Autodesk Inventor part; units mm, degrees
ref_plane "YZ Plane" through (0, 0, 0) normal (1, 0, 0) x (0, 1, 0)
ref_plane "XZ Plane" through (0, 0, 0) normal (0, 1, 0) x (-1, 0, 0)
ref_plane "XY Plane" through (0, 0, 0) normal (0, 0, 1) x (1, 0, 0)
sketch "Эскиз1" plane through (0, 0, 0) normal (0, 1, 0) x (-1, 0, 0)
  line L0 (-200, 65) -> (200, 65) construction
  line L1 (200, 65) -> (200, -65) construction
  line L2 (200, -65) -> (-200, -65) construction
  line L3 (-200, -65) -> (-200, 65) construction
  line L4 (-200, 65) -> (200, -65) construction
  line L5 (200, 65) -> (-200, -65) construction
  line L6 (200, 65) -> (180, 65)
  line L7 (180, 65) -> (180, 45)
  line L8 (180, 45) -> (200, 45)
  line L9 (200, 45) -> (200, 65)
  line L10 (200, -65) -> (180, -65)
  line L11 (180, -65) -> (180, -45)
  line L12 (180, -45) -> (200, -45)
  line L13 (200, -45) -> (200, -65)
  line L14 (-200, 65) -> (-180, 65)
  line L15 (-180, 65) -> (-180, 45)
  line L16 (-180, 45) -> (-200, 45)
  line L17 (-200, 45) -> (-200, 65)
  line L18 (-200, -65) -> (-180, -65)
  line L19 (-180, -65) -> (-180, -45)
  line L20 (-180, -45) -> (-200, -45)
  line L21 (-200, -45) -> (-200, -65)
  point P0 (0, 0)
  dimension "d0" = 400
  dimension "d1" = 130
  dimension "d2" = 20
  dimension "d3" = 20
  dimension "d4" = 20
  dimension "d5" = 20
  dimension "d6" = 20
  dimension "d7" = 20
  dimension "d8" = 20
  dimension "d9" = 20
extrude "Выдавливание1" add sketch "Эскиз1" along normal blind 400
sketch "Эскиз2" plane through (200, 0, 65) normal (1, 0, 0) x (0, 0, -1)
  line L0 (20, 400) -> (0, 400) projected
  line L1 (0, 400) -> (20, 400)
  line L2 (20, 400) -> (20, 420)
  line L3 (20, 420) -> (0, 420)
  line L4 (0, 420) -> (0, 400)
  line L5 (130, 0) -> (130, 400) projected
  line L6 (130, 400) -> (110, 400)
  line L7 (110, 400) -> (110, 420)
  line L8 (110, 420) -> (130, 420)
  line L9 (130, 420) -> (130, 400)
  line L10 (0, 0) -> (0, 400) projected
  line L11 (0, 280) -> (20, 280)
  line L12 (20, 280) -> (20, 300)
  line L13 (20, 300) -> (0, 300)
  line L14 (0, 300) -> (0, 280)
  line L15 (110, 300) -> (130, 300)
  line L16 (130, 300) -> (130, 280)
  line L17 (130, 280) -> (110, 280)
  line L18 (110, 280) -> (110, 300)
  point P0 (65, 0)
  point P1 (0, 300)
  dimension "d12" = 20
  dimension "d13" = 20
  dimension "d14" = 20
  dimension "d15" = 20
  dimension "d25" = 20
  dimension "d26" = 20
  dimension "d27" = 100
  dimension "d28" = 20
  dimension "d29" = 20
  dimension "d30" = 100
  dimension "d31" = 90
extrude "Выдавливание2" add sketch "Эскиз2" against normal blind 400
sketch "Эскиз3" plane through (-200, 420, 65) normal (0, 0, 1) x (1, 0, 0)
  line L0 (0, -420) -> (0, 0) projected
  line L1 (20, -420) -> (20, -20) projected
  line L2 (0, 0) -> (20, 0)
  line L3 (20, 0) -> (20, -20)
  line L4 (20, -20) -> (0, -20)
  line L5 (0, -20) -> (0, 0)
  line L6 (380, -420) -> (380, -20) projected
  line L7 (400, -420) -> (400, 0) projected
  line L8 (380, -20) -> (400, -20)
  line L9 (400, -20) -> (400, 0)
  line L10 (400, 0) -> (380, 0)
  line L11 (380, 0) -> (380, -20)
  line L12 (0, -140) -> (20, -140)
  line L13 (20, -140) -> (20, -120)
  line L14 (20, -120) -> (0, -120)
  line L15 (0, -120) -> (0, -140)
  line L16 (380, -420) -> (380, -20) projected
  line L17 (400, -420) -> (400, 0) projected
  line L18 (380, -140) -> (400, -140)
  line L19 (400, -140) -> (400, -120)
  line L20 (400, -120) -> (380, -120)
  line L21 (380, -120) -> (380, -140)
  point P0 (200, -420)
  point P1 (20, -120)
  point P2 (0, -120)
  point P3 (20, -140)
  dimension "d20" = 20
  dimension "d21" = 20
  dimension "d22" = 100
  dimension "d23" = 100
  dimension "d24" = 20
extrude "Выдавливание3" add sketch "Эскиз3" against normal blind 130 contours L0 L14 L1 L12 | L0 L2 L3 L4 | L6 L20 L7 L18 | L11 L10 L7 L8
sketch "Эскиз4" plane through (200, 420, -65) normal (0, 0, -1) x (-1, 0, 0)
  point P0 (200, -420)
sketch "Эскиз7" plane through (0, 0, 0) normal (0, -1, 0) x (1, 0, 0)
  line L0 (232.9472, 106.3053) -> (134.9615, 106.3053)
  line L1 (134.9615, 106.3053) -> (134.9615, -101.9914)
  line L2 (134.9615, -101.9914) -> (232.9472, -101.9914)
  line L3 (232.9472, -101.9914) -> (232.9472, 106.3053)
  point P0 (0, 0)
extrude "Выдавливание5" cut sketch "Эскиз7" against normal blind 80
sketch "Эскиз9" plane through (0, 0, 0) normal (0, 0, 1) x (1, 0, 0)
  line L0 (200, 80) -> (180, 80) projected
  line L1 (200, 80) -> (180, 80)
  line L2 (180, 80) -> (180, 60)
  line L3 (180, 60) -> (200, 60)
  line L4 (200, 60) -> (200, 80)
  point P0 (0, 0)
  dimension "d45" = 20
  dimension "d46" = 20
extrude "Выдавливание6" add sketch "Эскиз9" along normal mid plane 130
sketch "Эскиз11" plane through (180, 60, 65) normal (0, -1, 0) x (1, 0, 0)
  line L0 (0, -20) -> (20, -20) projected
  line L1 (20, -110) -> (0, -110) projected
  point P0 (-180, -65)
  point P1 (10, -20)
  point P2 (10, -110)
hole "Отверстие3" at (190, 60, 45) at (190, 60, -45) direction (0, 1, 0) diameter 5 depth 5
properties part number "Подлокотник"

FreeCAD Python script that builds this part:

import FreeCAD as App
import Part
import Sketcher
from FreeCAD import Vector
Q = App.Units.Quantity

doc = App.newDocument("Part")
params = doc.addObject("Spreadsheet::Sheet", "Params")
for row, (alias, value) in enumerate([
    ("sketch1_width", "20 mm"),
    ("pad1_length", "400 mm"),
    ("sketch2_width", "20 mm"),
    ("pad2_length", "400 mm"),
    ("sketch3_width", "20 mm"),
    ("pad3_length", "130 mm"),
    ("pocket1_length", "80 mm"),
    ("sketch5_width", "20 mm"),
    ("pad4_length", "130 mm"),
    ("sketch6_diameter", "5 mm"),
    ("hole_diameter", "5 mm"),
    ("hole_depth", "5 mm"),
], start=1):
    params.set(f"A{row}", alias)
    params.set(f"B{row}", "=" + value)
    params.setAlias(f"B{row}", alias)

body = doc.addObject("PartDesign::Body", "Body")
body.AllowCompound = True

# Sketch on XZ plane
sketch1 = body.newObject("Sketcher::SketchObject", "Sketch")
sketch1.AttachmentSupport = (doc.getObject("XZ_Plane"), [""])
sketch1.MapMode = "FlatFace"
sketch1.addGeometry([
    Part.LineSegment(Vector(-200, 45, 0), Vector(-200, 65, 0)),  # 0
    Part.LineSegment(Vector(-200, 65, 0), Vector(-180, 65, 0)),  # 1
    Part.LineSegment(Vector(-180, 65, 0), Vector(-180, 45, 0)),  # 2
    Part.LineSegment(Vector(-180, 45, 0), Vector(-200, 45, 0)),  # 3
    Part.LineSegment(Vector(-180, -65, 0), Vector(-200, -65, 0)),  # 4
    Part.LineSegment(Vector(-200, -65, 0), Vector(-200, -45, 0)),  # 5
    Part.LineSegment(Vector(-200, -45, 0), Vector(-180, -45, 0)),  # 6
    Part.LineSegment(Vector(-180, -45, 0), Vector(-180, -65, 0)),  # 7
    Part.LineSegment(Vector(180, 65, 0), Vector(200, 65, 0)),  # 8
    Part.LineSegment(Vector(200, 65, 0), Vector(200, 45, 0)),  # 9
    Part.LineSegment(Vector(200, 45, 0), Vector(180, 45, 0)),  # 10
    Part.LineSegment(Vector(180, 45, 0), Vector(180, 65, 0)),  # 11
    Part.LineSegment(Vector(200, -45, 0), Vector(200, -65, 0)),  # 12
    Part.LineSegment(Vector(200, -65, 0), Vector(180, -65, 0)),  # 13
    Part.LineSegment(Vector(180, -65, 0), Vector(180, -45, 0)),  # 14
    Part.LineSegment(Vector(180, -45, 0), Vector(200, -45, 0)),  # 15
], False)
sketch1.addConstraint([
    Sketcher.Constraint("Coincident", 0, 2, 1, 1),
    Sketcher.Constraint("Coincident", 1, 2, 2, 1),
    Sketcher.Constraint("Coincident", 2, 2, 3, 1),
    Sketcher.Constraint("Coincident", 3, 2, 0, 1),
    Sketcher.Constraint("Coincident", 4, 2, 5, 1),
    Sketcher.Constraint("Coincident", 5, 2, 6, 1),
    Sketcher.Constraint("Coincident", 6, 2, 7, 1),
    Sketcher.Constraint("Coincident", 7, 2, 4, 1),
    Sketcher.Constraint("Coincident", 8, 2, 9, 1),
    Sketcher.Constraint("Coincident", 9, 2, 10, 1),
    Sketcher.Constraint("Coincident", 10, 2, 11, 1),
    Sketcher.Constraint("Coincident", 11, 2, 8, 1),
    Sketcher.Constraint("Coincident", 12, 2, 13, 1),
    Sketcher.Constraint("Coincident", 13, 2, 14, 1),
    Sketcher.Constraint("Coincident", 14, 2, 15, 1),
    Sketcher.Constraint("Coincident", 15, 2, 12, 1),
    Sketcher.Constraint("Vertical", 0),
    Sketcher.Constraint("Horizontal", 1),
    Sketcher.Constraint("Vertical", 2),
    Sketcher.Constraint("Horizontal", 3),
    Sketcher.Constraint("Horizontal", 4),
    Sketcher.Constraint("Vertical", 5),
    Sketcher.Constraint("Horizontal", 6),
    Sketcher.Constraint("Vertical", 7),
    Sketcher.Constraint("Horizontal", 8),
    Sketcher.Constraint("Vertical", 9),
    Sketcher.Constraint("Horizontal", 10),
    Sketcher.Constraint("Vertical", 11),
    Sketcher.Constraint("Vertical", 12),
    Sketcher.Constraint("Horizontal", 13),
    Sketcher.Constraint("Vertical", 14),
    Sketcher.Constraint("Horizontal", 15),
    Sketcher.Constraint("Symmetric", 4, 2, 8, 2, -1, 1),
    Sketcher.Constraint("Symmetric", 6, 2, 10, 2, -1, 1),
    Sketcher.Constraint("Symmetric", 0, 2, 12, 2, -1, 1),
    Sketcher.Constraint("Symmetric", 2, 2, 14, 2, -1, 1),
    Sketcher.Constraint("Symmetric", 0, 2, 8, 2, -2),
    Sketcher.Constraint("Symmetric", 2, 2, 10, 2, -2),
    Sketcher.Constraint("Equal", 15, 0),
    Sketcher.Constraint("DistanceX", 1, 1, 1, 2, Q("20 mm")),
    Sketcher.Constraint("DistanceY", 4, 2, 0, 2, Q("130 mm")),
    Sketcher.Constraint("DistanceX", 0, 2, 8, 2, Q("400 mm")),
])
sketch1.setExpression("Constraints[39]", "Params.sketch1_width")
pad1 = body.newObject("PartDesign::Pad", "Pad")
pad1.Profile = sketch1
pad1.setExpression("Length", "Params.pad1_length")
pad1.Reversed = True

# Sketch on YZ plane
sketch2 = body.newObject("Sketcher::SketchObject", "Sketch001")
sketch2.AttachmentSupport = (doc.getObject("YZ_Plane"), [""])
sketch2.MapMode = "FlatFace"
sketch2.AttachmentOffset = App.Placement(Vector(0, 0, 200), App.Rotation())
sketch2.addGeometry([
    Part.LineSegment(Vector(300, 45, 0), Vector(300, 65, 0)),  # 0
    Part.LineSegment(Vector(300, 65, 0), Vector(280, 65, 0)),  # 1
    Part.LineSegment(Vector(280, 65, 0), Vector(280, 45, 0)),  # 2
    Part.LineSegment(Vector(280, 45, 0), Vector(300, 45, 0)),  # 3
    Part.LineSegment(Vector(400, 65, 0), Vector(400, 45, 0)),  # 4
    Part.LineSegment(Vector(400, 45, 0), Vector(420, 45, 0)),  # 5
    Part.LineSegment(Vector(420, 45, 0), Vector(420, 65, 0)),  # 6
    Part.LineSegment(Vector(420, 65, 0), Vector(400, 65, 0)),  # 7
    Part.LineSegment(Vector(280, -45, 0), Vector(280, -65, 0)),  # 8
    Part.LineSegment(Vector(280, -65, 0), Vector(300, -65, 0)),  # 9
    Part.LineSegment(Vector(300, -65, 0), Vector(300, -45, 0)),  # 10
    Part.LineSegment(Vector(300, -45, 0), Vector(280, -45, 0)),  # 11
    Part.LineSegment(Vector(400, -45, 0), Vector(400, -65, 0)),  # 12
    Part.LineSegment(Vector(400, -65, 0), Vector(420, -65, 0)),  # 13
    Part.LineSegment(Vector(420, -65, 0), Vector(420, -45, 0)),  # 14
    Part.LineSegment(Vector(420, -45, 0), Vector(400, -45, 0)),  # 15
], False)
sketch2.addConstraint([
    Sketcher.Constraint("Coincident", 0, 2, 1, 1),
    Sketcher.Constraint("Coincident", 1, 2, 2, 1),
    Sketcher.Constraint("Coincident", 2, 2, 3, 1),
    Sketcher.Constraint("Coincident", 3, 2, 0, 1),
    Sketcher.Constraint("Coincident", 4, 2, 5, 1),
    Sketcher.Constraint("Coincident", 5, 2, 6, 1),
    Sketcher.Constraint("Coincident", 6, 2, 7, 1),
    Sketcher.Constraint("Coincident", 7, 2, 4, 1),
    Sketcher.Constraint("Coincident", 8, 2, 9, 1),
    Sketcher.Constraint("Coincident", 9, 2, 10, 1),
    Sketcher.Constraint("Coincident", 10, 2, 11, 1),
    Sketcher.Constraint("Coincident", 11, 2, 8, 1),
    Sketcher.Constraint("Coincident", 12, 2, 13, 1),
    Sketcher.Constraint("Coincident", 13, 2, 14, 1),
    Sketcher.Constraint("Coincident", 14, 2, 15, 1),
    Sketcher.Constraint("Coincident", 15, 2, 12, 1),
    Sketcher.Constraint("Vertical", 0),
    Sketcher.Constraint("Horizontal", 1),
    Sketcher.Constraint("Vertical", 2),
    Sketcher.Constraint("Horizontal", 3),
    Sketcher.Constraint("Vertical", 4),
    Sketcher.Constraint("Horizontal", 5),
    Sketcher.Constraint("Vertical", 6),
    Sketcher.Constraint("Horizontal", 7),
    Sketcher.Constraint("Vertical", 8),
    Sketcher.Constraint("Horizontal", 9),
    Sketcher.Constraint("Vertical", 10),
    Sketcher.Constraint("Horizontal", 11),
    Sketcher.Constraint("Vertical", 12),
    Sketcher.Constraint("Horizontal", 13),
    Sketcher.Constraint("Vertical", 14),
    Sketcher.Constraint("Horizontal", 15),
    Sketcher.Constraint("Symmetric", 1, 2, 8, 2, -1),
    Sketcher.Constraint("Symmetric", 3, 2, 10, 2, -1),
    Sketcher.Constraint("Symmetric", 7, 2, 12, 2, -1),
    Sketcher.Constraint("Symmetric", 5, 2, 14, 2, -1),
    Sketcher.Constraint("Horizontal", 3, 2, 4, 2),
    Sketcher.Constraint("Horizontal", 1, 2, 6, 2),
    Sketcher.Constraint("Equal", 3, 5),
    Sketcher.Constraint("Equal", 15, 0),
    Sketcher.Constraint("DistanceX", 1, 2, 1, 1, Q("20 mm")),
    Sketcher.Constraint("DistanceX", 3, 2, 4, 2, Q("100 mm")),
    Sketcher.Constraint("DistanceY", 10, 2, 3, 2, Q("90 mm")),
    Sketcher.Constraint("DistanceX", -1, 1, 0, 2, Q("300 mm")),
])
sketch2.setExpression("Constraints[40]", "Params.sketch2_width")
pad2 = body.newObject("PartDesign::Pad", "Pad001")
pad2.Profile = sketch2
pad2.setExpression("Length", "Params.pad2_length")
pad2.Reversed = True

# Sketch on XY plane
sketch3 = body.newObject("Sketcher::SketchObject", "Sketch002")
sketch3.AttachmentSupport = (doc.getObject("XY_Plane"), [""])
sketch3.MapMode = "FlatFace"
sketch3.AttachmentOffset = App.Placement(Vector(0, 0, 65), App.Rotation())
sketch3.addGeometry([
    Part.LineSegment(Vector(-200, 300, 0), Vector(-200, 280, 0)),  # 0
    Part.LineSegment(Vector(-200, 280, 0), Vector(-180, 280, 0)),  # 1
    Part.LineSegment(Vector(-180, 280, 0), Vector(-180, 300, 0)),  # 2
    Part.LineSegment(Vector(-180, 300, 0), Vector(-200, 300, 0)),  # 3
    Part.LineSegment(Vector(-200, 420, 0), Vector(-200, 400, 0)),  # 4
    Part.LineSegment(Vector(-200, 400, 0), Vector(-180, 400, 0)),  # 5
    Part.LineSegment(Vector(-180, 400, 0), Vector(-180, 420, 0)),  # 6
    Part.LineSegment(Vector(-180, 420, 0), Vector(-200, 420, 0)),  # 7
    Part.LineSegment(Vector(180, 300, 0), Vector(180, 280, 0)),  # 8
    Part.LineSegment(Vector(180, 280, 0), Vector(200, 280, 0)),  # 9
    Part.LineSegment(Vector(200, 280, 0), Vector(200, 300, 0)),  # 10
    Part.LineSegment(Vector(200, 300, 0), Vector(180, 300, 0)),  # 11
    Part.LineSegment(Vector(180, 420, 0), Vector(180, 400, 0)),  # 12
    Part.LineSegment(Vector(180, 400, 0), Vector(200, 400, 0)),  # 13
    Part.LineSegment(Vector(200, 400, 0), Vector(200, 420, 0)),  # 14
    Part.LineSegment(Vector(200, 420, 0), Vector(180, 420, 0)),  # 15
], False)
sketch3.addConstraint([
    Sketcher.Constraint("Coincident", 0, 2, 1, 1),
    Sketcher.Constraint("Coincident", 1, 2, 2, 1),
    Sketcher.Constraint("Coincident", 2, 2, 3, 1),
    Sketcher.Constraint("Coincident", 3, 2, 0, 1),
    Sketcher.Constraint("Coincident", 4, 2, 5, 1),
    Sketcher.Constraint("Coincident", 5, 2, 6, 1),
    Sketcher.Constraint("Coincident", 6, 2, 7, 1),
    Sketcher.Constraint("Coincident", 7, 2, 4, 1),
    Sketcher.Constraint("Coincident", 8, 2, 9, 1),
    Sketcher.Constraint("Coincident", 9, 2, 10, 1),
    Sketcher.Constraint("Coincident", 10, 2, 11, 1),
    Sketcher.Constraint("Coincident", 11, 2, 8, 1),
    Sketcher.Constraint("Coincident", 12, 2, 13, 1),
    Sketcher.Constraint("Coincident", 13, 2, 14, 1),
    Sketcher.Constraint("Coincident", 14, 2, 15, 1),
    Sketcher.Constraint("Coincident", 15, 2, 12, 1),
    Sketcher.Constraint("Vertical", 0),
    Sketcher.Constraint("Horizontal", 1),
    Sketcher.Constraint("Vertical", 2),
    Sketcher.Constraint("Horizontal", 3),
    Sketcher.Constraint("Vertical", 4),
    Sketcher.Constraint("Horizontal", 5),
    Sketcher.Constraint("Vertical", 6),
    Sketcher.Constraint("Horizontal", 7),
    Sketcher.Constraint("Vertical", 8),
    Sketcher.Constraint("Horizontal", 9),
    Sketcher.Constraint("Vertical", 10),
    Sketcher.Constraint("Horizontal", 11),
    Sketcher.Constraint("Vertical", 12),
    Sketcher.Constraint("Horizontal", 13),
    Sketcher.Constraint("Vertical", 14),
    Sketcher.Constraint("Horizontal", 15),
    Sketcher.Constraint("Symmetric", 1, 2, 8, 2, -2),
    Sketcher.Constraint("Symmetric", 3, 2, 10, 2, -2),
    Sketcher.Constraint("Symmetric", 5, 2, 12, 2, -2),
    Sketcher.Constraint("Symmetric", 7, 2, 14, 2, -2),
    Sketcher.Constraint("Vertical", 3, 2, 4, 2),
    Sketcher.Constraint("Vertical", 2, 2, 5, 2),
    Sketcher.Constraint("Equal", 15, 0),
    Sketcher.Constraint("Equal", 2, 4),
    Sketcher.Constraint("DistanceX", 1, 1, 1, 2, Q("20 mm")),
    Sketcher.Constraint("DistanceY", 3, 2, 4, 2, Q("100 mm")),
    Sketcher.Constraint("DistanceX", 0, 2, -1, 1, Q("200 mm")),
    Sketcher.Constraint("DistanceY", -1, 1, 0, 2, Q("280 mm")),
])
sketch3.setExpression("Constraints[40]", "Params.sketch3_width")
pad3 = body.newObject("PartDesign::Pad", "Pad002")
pad3.Profile = sketch3
pad3.setExpression("Length", "Params.pad3_length")
pad3.Reversed = True

# Sketch on XZ plane
sketch4 = body.newObject("Sketcher::SketchObject", "Sketch003")
sketch4.AttachmentSupport = (doc.getObject("XZ_Plane"), [""])
sketch4.MapMode = "FlatFace"
sketch4.addGeometry([
    Part.LineSegment(Vector(232.9472, -101.9914, 0), Vector(232.9472, 106.3053, 0)),
    Part.LineSegment(Vector(232.9472, 106.3053, 0), Vector(134.9615, 106.3053, 0)),
    Part.LineSegment(Vector(134.9615, 106.3053, 0), Vector(134.9615, -101.9914, 0)),
    Part.LineSegment(Vector(134.9615, -101.9914, 0), Vector(232.9472, -101.9914, 0)),
], False)
sketch4.addConstraint([
    Sketcher.Constraint("Coincident", 0, 2, 1, 1),
    Sketcher.Constraint("Coincident", 1, 2, 2, 1),
    Sketcher.Constraint("Coincident", 2, 2, 3, 1),
    Sketcher.Constraint("Coincident", 3, 2, 0, 1),
    Sketcher.Constraint("Vertical", 0),
    Sketcher.Constraint("Horizontal", 1),
    Sketcher.Constraint("Vertical", 2),
    Sketcher.Constraint("Horizontal", 3),
    Sketcher.Constraint("DistanceX", 1, 2, 1, 1, Q("97.9857 mm")),
    Sketcher.Constraint("DistanceY", 0, 1, 0, 2, Q("208.2967 mm")),
    Sketcher.Constraint("DistanceX", -1, 1, 0, 2, Q("232.9472 mm")),
    Sketcher.Constraint("DistanceY", -1, 1, 0, 2, Q("106.3053 mm")),
])
pocket1 = body.newObject("PartDesign::Pocket", "Pocket")
pocket1.Profile = sketch4
pocket1.setExpression("Length", "Params.pocket1_length")

# Sketch on XY plane
sketch5 = body.newObject("Sketcher::SketchObject", "Sketch004")
sketch5.AttachmentSupport = (doc.getObject("XY_Plane"), [""])
sketch5.MapMode = "FlatFace"
sketch5.addGeometry([
    Part.LineSegment(Vector(200, 60, 0), Vector(200, 80, 0)),
    Part.LineSegment(Vector(200, 80, 0), Vector(180, 80, 0)),
    Part.LineSegment(Vector(180, 80, 0), Vector(180, 60, 0)),
    Part.LineSegment(Vector(180, 60, 0), Vector(200, 60, 0)),
], False)
sketch5.addConstraint([
    Sketcher.Constraint("Coincident", 0, 2, 1, 1),
    Sketcher.Constraint("Coincident", 1, 2, 2, 1),
    Sketcher.Constraint("Coincident", 2, 2, 3, 1),
    Sketcher.Constraint("Coincident", 3, 2, 0, 1),
    Sketcher.Constraint("Vertical", 0),
    Sketcher.Constraint("Horizontal", 1),
    Sketcher.Constraint("Vertical", 2),
    Sketcher.Constraint("Horizontal", 3),
    Sketcher.Constraint("Equal", 3, 0),
    Sketcher.Constraint("DistanceX", 1, 2, 1, 1, Q("20 mm")),
    Sketcher.Constraint("DistanceX", -1, 1, 0, 2, Q("200 mm")),
    Sketcher.Constraint("DistanceY", -1, 1, 0, 2, Q("80 mm")),
])
sketch5.setExpression("Constraints[9]", "Params.sketch5_width")
pad4 = body.newObject("PartDesign::Pad", "Pad003")
pad4.Profile = sketch5
pad4.setExpression("Length", "Params.pad4_length")
pad4.Midplane = True

# Sketch on XZ plane
sketch6 = body.newObject("Sketcher::SketchObject", "Sketch005")
sketch6.AttachmentSupport = (doc.getObject("XZ_Plane"), [""])
sketch6.MapMode = "FlatFace"
sketch6.AttachmentOffset = App.Placement(Vector(0, 0, -60), App.Rotation())
sketch6.addGeometry([
    Part.Circle(Vector(190, 45, 0), Vector(0, 0, 1), 2.5),
    Part.Circle(Vector(190, -45, 0), Vector(0, 0, 1), 2.5),
], False)
sketch6.addConstraint([
    Sketcher.Constraint("Equal", 0, 1),
    Sketcher.Constraint("Symmetric", 0, 3, 1, 3, -1),
    Sketcher.Constraint("Diameter", 0, Q("5 mm")),
    Sketcher.Constraint("DistanceX", -1, 1, 0, 3, Q("190 mm")),
    Sketcher.Constraint("DistanceY", -1, 1, 0, 3, Q("45 mm")),
])
sketch6.setExpression("Constraints[2]", "Params.sketch6_diameter")
doc.recompute()
hole = body.newObject("PartDesign::Hole", "Hole")
hole.Profile = sketch6
hole.ThreadType = "None"
hole.setExpression("Diameter", "Params.hole_diameter")
hole.DepthType = "Dimension"
hole.setExpression("Depth", "Params.hole_depth")
hole.DrillPoint = "Flat"

doc.recompute()
